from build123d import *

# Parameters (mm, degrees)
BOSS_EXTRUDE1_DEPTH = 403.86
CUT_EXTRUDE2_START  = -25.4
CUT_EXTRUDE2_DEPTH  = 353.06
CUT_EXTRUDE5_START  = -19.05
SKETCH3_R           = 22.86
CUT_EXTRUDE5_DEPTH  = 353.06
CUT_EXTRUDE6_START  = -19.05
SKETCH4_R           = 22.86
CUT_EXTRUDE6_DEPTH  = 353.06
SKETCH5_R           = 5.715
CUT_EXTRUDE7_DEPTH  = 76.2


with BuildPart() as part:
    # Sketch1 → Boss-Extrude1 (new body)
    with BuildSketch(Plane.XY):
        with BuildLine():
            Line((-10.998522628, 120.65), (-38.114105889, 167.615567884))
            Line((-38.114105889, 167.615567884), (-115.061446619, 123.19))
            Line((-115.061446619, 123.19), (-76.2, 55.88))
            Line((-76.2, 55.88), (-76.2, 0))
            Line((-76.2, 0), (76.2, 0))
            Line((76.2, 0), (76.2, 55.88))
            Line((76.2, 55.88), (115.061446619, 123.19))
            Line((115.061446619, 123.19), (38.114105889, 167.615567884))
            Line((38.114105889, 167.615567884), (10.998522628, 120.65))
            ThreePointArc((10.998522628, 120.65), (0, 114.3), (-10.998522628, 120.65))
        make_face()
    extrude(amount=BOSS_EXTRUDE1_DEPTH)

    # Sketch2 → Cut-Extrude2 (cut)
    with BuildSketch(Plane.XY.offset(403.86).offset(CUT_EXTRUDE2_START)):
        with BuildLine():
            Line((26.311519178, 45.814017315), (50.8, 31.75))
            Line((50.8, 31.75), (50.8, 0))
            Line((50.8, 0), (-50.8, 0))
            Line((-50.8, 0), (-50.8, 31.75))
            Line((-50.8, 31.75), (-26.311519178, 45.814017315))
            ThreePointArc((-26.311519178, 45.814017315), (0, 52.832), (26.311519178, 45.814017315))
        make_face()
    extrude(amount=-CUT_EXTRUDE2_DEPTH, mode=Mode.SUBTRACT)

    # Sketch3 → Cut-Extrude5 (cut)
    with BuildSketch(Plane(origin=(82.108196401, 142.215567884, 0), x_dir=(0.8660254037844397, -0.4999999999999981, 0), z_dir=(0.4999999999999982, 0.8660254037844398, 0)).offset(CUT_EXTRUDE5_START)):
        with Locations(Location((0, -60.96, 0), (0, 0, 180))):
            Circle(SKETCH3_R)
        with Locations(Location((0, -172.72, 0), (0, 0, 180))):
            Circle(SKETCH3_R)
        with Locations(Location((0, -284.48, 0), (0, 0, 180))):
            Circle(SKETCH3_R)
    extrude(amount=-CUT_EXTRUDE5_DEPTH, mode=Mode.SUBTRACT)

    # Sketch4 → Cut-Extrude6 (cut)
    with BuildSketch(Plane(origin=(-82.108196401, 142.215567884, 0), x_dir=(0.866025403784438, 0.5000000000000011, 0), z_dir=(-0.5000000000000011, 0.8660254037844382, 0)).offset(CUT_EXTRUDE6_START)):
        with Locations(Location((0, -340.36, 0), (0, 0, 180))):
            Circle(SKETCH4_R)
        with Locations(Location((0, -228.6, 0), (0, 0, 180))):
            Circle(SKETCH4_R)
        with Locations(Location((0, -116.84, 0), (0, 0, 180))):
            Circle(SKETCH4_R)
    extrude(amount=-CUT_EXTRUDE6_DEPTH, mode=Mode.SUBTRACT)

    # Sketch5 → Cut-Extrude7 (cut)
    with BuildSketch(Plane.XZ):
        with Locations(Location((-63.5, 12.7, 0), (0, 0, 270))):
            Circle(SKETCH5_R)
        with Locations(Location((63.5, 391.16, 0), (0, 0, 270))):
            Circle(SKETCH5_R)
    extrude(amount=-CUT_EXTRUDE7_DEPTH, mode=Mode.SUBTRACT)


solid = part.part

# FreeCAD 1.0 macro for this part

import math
import FreeCAD as App
import Part
import Sketcher
from FreeCAD import Vector
Q = App.Units.Quantity

doc = App.newDocument("Part")
body = doc.addObject("PartDesign::Body", "Body")

# Sketch on XY plane
sketch1 = body.newObject("Sketcher::SketchObject", "Sketch")
sketch1.AttachmentSupport = (doc.getObject("XY_Plane"), [""])
sketch1.MapMode = "FlatFace"
sketch1.addGeometry([
    Part.LineSegment(Vector(-10.998523, 120.65, 0), Vector(-38.114106, 167.615568, 0)),  # 0
    Part.LineSegment(Vector(-38.114106, 167.615568, 0), Vector(-115.061447, 123.19, 0)),  # 1
    Part.LineSegment(Vector(-115.061447, 123.19, 0), Vector(-76.2, 55.88, 0)),  # 2
    Part.LineSegment(Vector(-76.2, 55.88, 0), Vector(-76.2, 0, 0)),  # 3
    Part.LineSegment(Vector(-76.2, 0, 0), Vector(76.2, 0, 0)),  # 4
    Part.LineSegment(Vector(76.2, 0, 0), Vector(76.2, 55.88, 0)),  # 5
    Part.LineSegment(Vector(76.2, 55.88, 0), Vector(115.061447, 123.19, 0)),  # 6
    Part.LineSegment(Vector(115.061447, 123.19, 0), Vector(38.114106, 167.615568, 0)),  # 7
    Part.LineSegment(Vector(38.114106, 167.615568, 0), Vector(10.998523, 120.65, 0)),  # 8
    Part.ArcOfCircle(Part.Circle(Vector(0, 127, 0), Vector(0, 0, 1), 12.7), math.radians(-150), math.radians(-30)),  # 9
], False)
sketch1.addConstraint([
    Sketcher.Constraint("Coincident", 0, 2, 1, 1),
    Sketcher.Constraint("Coincident", 1, 2, 2, 1),
    Sketcher.Constraint("Coincident", 2, 2, 3, 1),
    Sketcher.Constraint("Coincident", 3, 2, 4, 1),
    Sketcher.Constraint("Coincident", 4, 2, 5, 1),
    Sketcher.Constraint("Coincident", 5, 2, 6, 1),
    Sketcher.Constraint("Coincident", 6, 2, 7, 1),
    Sketcher.Constraint("Coincident", 7, 2, 8, 1),
    Sketcher.Constraint("Tangent", 8, 2, 9, 2),
    Sketcher.Constraint("Tangent", 9, 1, 0, 1),
    Sketcher.Constraint("Vertical", 3),
    Sketcher.Constraint("Horizontal", 4),
    Sketcher.Constraint("Vertical", 5),
    Sketcher.Constraint("Symmetric", 3, 2, 4, 2, -1, 1),
    Sketcher.Constraint("Symmetric", 1, 2, 6, 2, -2),
    Sketcher.Constraint("Symmetric", 0, 2, 7, 2, -2),
    Sketcher.Constraint("PointOnObject", 9, 3, -2),
    Sketcher.Constraint("Perpendicular", 0, 1),
    Sketcher.Constraint("Perpendicular", 1, 2),
    Sketcher.Constraint("Perpendicular", 6, 7),
    Sketcher.Constraint("Radius", 9, Q("0.5 in")),
    Sketcher.Constraint("DistanceX", 4, 1, 4, 2, Q("6 in")),
    Sketcher.Constraint("DistanceY", 3, 2, 3, 1, Q("2.2 in")),
    Sketcher.Constraint("DistanceY", -1, 1, 9, 3, Q("5 in")),
    Sketcher.Constraint("Angle", 0, Q("120 deg")),
    Sketcher.Constraint("DistanceY", 8, 2, 6, 2, Q("0.1 in")),
])
pad1 = body.newObject("PartDesign::Pad", "Pad")
pad1.Profile = sketch1
pad1.Length = Q("15.9 in")

# Sketch on XY plane
sketch2 = body.newObject("Sketcher::SketchObject", "Sketch001")
sketch2.AttachmentSupport = (doc.getObject("XY_Plane"), [""])
sketch2.MapMode = "FlatFace"
sketch2.AttachmentOffset = App.Placement(Vector(0, 0, 14.9 * 25.4), App.Rotation())
sketch2.addGeometry([
    Part.LineSegment(Vector(50.8, 31.75, 0), Vector(26.311519, 45.814017, 0)),  # 0
    Part.ArcOfCircle(Part.Circle(Vector(0, 0, 0), Vector(0, 0, 1), 52.832), math.radians(60.130751), math.radians(119.869249)),  # 1
    Part.LineSegment(Vector(-26.311519, 45.814017, 0), Vector(-50.8, 31.75, 0)),  # 2
    Part.LineSegment(Vector(-50.8, 31.75, 0), Vector(-50.8, 0, 0)),  # 3
    Part.LineSegment(Vector(-50.8, 0, 0), Vector(50.8, 0, 0)),  # 4
    Part.LineSegment(Vector(50.8, 0, 0), Vector(50.8, 31.75, 0)),  # 5
], False)
sketch2.addConstraint([
    Sketcher.Constraint("Tangent", 0, 2, 1, 1),
    Sketcher.Constraint("Tangent", 1, 2, 2, 1),
    Sketcher.Constraint("Coincident", 2, 2, 3, 1),
    Sketcher.Constraint("Coincident", 3, 2, 4, 1),
    Sketcher.Constraint("Coincident", 4, 2, 5, 1),
    Sketcher.Constraint("Coincident", 5, 2, 0, 1),
    Sketcher.Constraint("Vertical", 3),
    Sketcher.Constraint("Horizontal", 4),
    Sketcher.Constraint("Vertical", 5),
    Sketcher.Constraint("Coincident", 1, 3, -1, 1),
    Sketcher.Constraint("Symmetric", 3, 2, 4, 2, -1, 1),
    Sketcher.Constraint("Horizontal", 0, 2, 1, 2),
    Sketcher.Constraint("DistanceX", 4, 1, 4, 2, Q("4 in")),
    Sketcher.Constraint("Radius", 1, Q("2.08 in")),
    Sketcher.Constraint("DistanceY", 3, 2, 3, 1, Q("1.25 in")),
])
pocket1 = body.newObject("PartDesign::Pocket", "Pocket")
pocket1.Profile = sketch2
pocket1.Length = Q("13.9 in")

# Sketch on an angled plane
sketch3 = body.newObject("Sketcher::SketchObject", "Sketch002")
sketch3.Placement = App.Placement(Vector(72.583196, 125.717784, 0), App.Rotation(Vector(0.866025404, -0.5, 0), Vector(0, 0, -1), Vector(0.5, 0.866025404, 0), "ZXY"))
sketch3.addGeometry([
    Part.Circle(Vector(0, -60.96, 0), Vector(0, 0, 1), 22.86),
    Part.Circle(Vector(0, -172.72, 0), Vector(0, 0, 1), 22.86),
    Part.Circle(Vector(0, -284.48, 0), Vector(0, 0, 1), 22.86),
], False)
sketch3.addConstraint([
    Sketcher.Constraint("Equal", 0, 1),
    Sketcher.Constraint("Equal", 1, 2),
    Sketcher.Constraint("PointOnObject", 0, 3, -2),
    Sketcher.Constraint("PointOnObject", 1, 3, -2),
    Sketcher.Constraint("PointOnObject", 2, 3, -2),
    Sketcher.Constraint("Diameter", 0, Q("1.8 in")),
    Sketcher.Constraint("DistanceY", 0, 3, -1, 1, Q("2.4 in")),
    Sketcher.Constraint("DistanceY", 1, 3, -1, 1, Q("6.8 in")),
    Sketcher.Constraint("DistanceY", 2, 3, -1, 1, Q("11.2 in")),
])
pocket2 = body.newObject("PartDesign::Pocket", "Pocket001")
pocket2.Profile = sketch3
pocket2.Length = Q("13.9 in")

# Sketch on an angled plane
sketch4 = body.newObject("Sketcher::SketchObject", "Sketch003")
sketch4.Placement = App.Placement(Vector(-72.583196, 125.717784, 0), App.Rotation(Vector(0.866025404, 0.5, 0), Vector(0, 0, -1), Vector(-0.5, 0.866025404, 0), "ZXY"))
sketch4.addGeometry([
    Part.Circle(Vector(0, -340.36, 0), Vector(0, 0, 1), 22.86),
    Part.Circle(Vector(0, -228.6, 0), Vector(0, 0, 1), 22.86),
    Part.Circle(Vector(0, -116.84, 0), Vector(0, 0, 1), 22.86),
], False)
sketch4.addConstraint([
    Sketcher.Constraint("Equal", 0, 1),
    Sketcher.Constraint("Equal", 1, 2),
    Sketcher.Constraint("PointOnObject", 0, 3, -2),
    Sketcher.Constraint("PointOnObject", 1, 3, -2),
    Sketcher.Constraint("PointOnObject", 2, 3, -2),
    Sketcher.Constraint("Diameter", 0, Q("1.8 in")),
    Sketcher.Constraint("DistanceY", 1, 3, -1, 1, Q("9 in")),
    Sketcher.Constraint("DistanceY", 0, 3, -1, 1, Q("13.4 in")),
    Sketcher.Constraint("DistanceY", 2, 3, -1, 1, Q("4.6 in")),
])
pocket3 = body.newObject("PartDesign::Pocket", "Pocket002")
pocket3.Profile = sketch4
pocket3.Length = Q("13.9 in")

# Sketch on XZ plane
sketch5 = body.newObject("Sketcher::SketchObject", "Sketch004")
sketch5.AttachmentSupport = (doc.getObject("XZ_Plane"), [""])
sketch5.MapMode = "FlatFace"
sketch5.addGeometry([
    Part.Circle(Vector(-63.5, 12.7, 0), Vector(0, 0, 1), 5.715),
    Part.Circle(Vector(63.5, 391.16, 0), Vector(0, 0, 1), 5.715),
], False)
sketch5.addConstraint([
    Sketcher.Constraint("Equal", 0, 1),
    Sketcher.Constraint("Diameter", 0, Q("0.45 in")),
    Sketcher.Constraint("DistanceX", 0, 3, 1, 3, Q("5 in")),
    Sketcher.Constraint("DistanceX", 0, 3, -1, 1, Q("2.5 in")),
    Sketcher.Constraint("DistanceY", -1, 1, 0, 3, Q("0.5 in")),
    Sketcher.Constraint("DistanceY", -1, 1, 1, 3, Q("15.4 in")),
])
pocket4 = body.newObject("PartDesign::Pocket", "Pocket003")
pocket4.Profile = sketch5
pocket4.Length = Q("3 in")

doc.recompute()
